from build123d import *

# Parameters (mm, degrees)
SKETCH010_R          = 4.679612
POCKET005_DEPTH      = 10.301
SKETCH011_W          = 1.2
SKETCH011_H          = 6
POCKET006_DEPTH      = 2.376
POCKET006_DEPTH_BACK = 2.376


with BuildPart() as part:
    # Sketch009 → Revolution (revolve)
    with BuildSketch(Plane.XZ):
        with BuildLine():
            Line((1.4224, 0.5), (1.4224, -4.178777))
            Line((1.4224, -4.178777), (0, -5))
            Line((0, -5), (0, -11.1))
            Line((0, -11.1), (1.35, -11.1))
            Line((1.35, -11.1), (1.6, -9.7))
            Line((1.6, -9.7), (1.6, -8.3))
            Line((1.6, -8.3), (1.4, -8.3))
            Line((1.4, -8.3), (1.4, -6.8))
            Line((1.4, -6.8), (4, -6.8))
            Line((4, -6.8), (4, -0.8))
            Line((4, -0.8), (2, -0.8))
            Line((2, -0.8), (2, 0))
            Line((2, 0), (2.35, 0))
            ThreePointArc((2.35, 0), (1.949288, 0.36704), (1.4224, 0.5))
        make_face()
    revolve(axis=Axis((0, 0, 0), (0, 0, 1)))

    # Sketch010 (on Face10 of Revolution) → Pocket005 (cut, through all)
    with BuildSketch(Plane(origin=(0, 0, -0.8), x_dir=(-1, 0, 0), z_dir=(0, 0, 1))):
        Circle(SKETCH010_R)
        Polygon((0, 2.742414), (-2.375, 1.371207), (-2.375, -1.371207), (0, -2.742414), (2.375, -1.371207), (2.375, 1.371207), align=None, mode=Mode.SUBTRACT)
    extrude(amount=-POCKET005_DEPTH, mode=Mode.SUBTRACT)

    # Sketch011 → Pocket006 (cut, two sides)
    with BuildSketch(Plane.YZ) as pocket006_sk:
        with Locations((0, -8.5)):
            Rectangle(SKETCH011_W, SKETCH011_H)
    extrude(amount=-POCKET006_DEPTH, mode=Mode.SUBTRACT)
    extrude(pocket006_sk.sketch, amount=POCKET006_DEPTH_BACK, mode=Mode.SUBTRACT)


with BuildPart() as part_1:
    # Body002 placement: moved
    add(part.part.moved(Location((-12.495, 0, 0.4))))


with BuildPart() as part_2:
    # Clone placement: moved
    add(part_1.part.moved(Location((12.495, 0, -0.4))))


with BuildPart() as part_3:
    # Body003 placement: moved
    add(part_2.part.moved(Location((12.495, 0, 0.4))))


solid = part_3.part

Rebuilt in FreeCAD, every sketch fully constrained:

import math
import FreeCAD as App
import Part
import Sketcher
from FreeCAD import Vector
Q = App.Units.Quantity


def add_polygon(sketch, points):
    """Adds a closed chain of lines whose ends are joined by coincident constraints."""
    first, n = sketch.GeometryCount, len(points)
    for a, b in zip(points, points[1:] + points[:1]):
        sketch.addGeometry(Part.LineSegment(App.Vector(*a, 0), App.Vector(*b, 0)), False)
    for i in range(n):
        sketch.addConstraint(Sketcher.Constraint("Coincident", first + i, 2, first + (i + 1) % n, 1))

doc = App.newDocument("Part")
body = doc.addObject("PartDesign::Body", "Body")

sketch1 = doc.addObject("Sketcher::SketchObject", "Sketch")
body.addObject(sketch1)
sketch1.AttachmentSupport = (doc.XZ_Plane, [""])
sketch1.MapMode = "FlatFace"
sketch1.addGeometry([
    Part.LineSegment(Vector(1.42, 0.5, 0), Vector(1.42, -4.18, 0)),
    Part.LineSegment(Vector(1.42, -4.18, 0), Vector(0, -5, 0)),
    Part.LineSegment(Vector(0, -5, 0), Vector(0, -11.1, 0)),
    Part.LineSegment(Vector(0, -11.1, 0), Vector(1.35, -11.1, 0)),
    Part.LineSegment(Vector(1.35, -11.1, 0), Vector(1.6, -9.7, 0)),
    Part.LineSegment(Vector(1.6, -9.7, 0), Vector(1.6, -8.3, 0)),
    Part.LineSegment(Vector(1.6, -8.3, 0), Vector(1.4, -8.3, 0)),
    Part.LineSegment(Vector(1.4, -8.3, 0), Vector(1.4, -6.8, 0)),
    Part.LineSegment(Vector(1.4, -6.8, 0), Vector(4, -6.8, 0)),
    Part.LineSegment(Vector(4, -6.8, 0), Vector(4, -0.8, 0)),
    Part.LineSegment(Vector(4, -0.8, 0), Vector(2, -0.8, 0)),
    Part.LineSegment(Vector(2, -0.8, 0), Vector(2, 0, 0)),
    Part.LineSegment(Vector(2, 0, 0), Vector(2.35, 0, 0)),
    Part.ArcOfCircle(Part.Circle(Vector(1.42, -0.61, 0), Vector(0, 0, 1), 1.11), math.radians(33), math.radians(90)),
], False)
sketch1.addConstraint([
    Sketcher.Constraint("Coincident", 0, 2, 1, 1),
    Sketcher.Constraint("Coincident", 1, 2, 2, 1),
    Sketcher.Constraint("Coincident", 2, 2, 3, 1),
    Sketcher.Constraint("Coincident", 3, 2, 4, 1),
    Sketcher.Constraint("Coincident", 4, 2, 5, 1),
    Sketcher.Constraint("Coincident", 5, 2, 6, 1),
    Sketcher.Constraint("Coincident", 6, 2, 7, 1),
    Sketcher.Constraint("Coincident", 7, 2, 8, 1),
    Sketcher.Constraint("Coincident", 8, 2, 9, 1),
    Sketcher.Constraint("Coincident", 9, 2, 10, 1),
    Sketcher.Constraint("Coincident", 10, 2, 11, 1),
    Sketcher.Constraint("Coincident", 11, 2, 12, 1),
    Sketcher.Constraint("Coincident", 12, 2, 13, 1),
    Sketcher.Constraint("Coincident", 13, 2, 0, 1),
    Sketcher.Constraint("Vertical", 0),
    Sketcher.Constraint("Vertical", 2),
    Sketcher.Constraint("Horizontal", 3),
    Sketcher.Constraint("Vertical", 5),
    Sketcher.Constraint("Horizontal", 6),
    Sketcher.Constraint("Vertical", 7),
    Sketcher.Constraint("Horizontal", 8),
    Sketcher.Constraint("Vertical", 9),
    Sketcher.Constraint("Horizontal", 10),
    Sketcher.Constraint("Vertical", 11),
    Sketcher.Constraint("Horizontal", 12),
    Sketcher.Constraint("PointOnObject", 1, 2, -2),
    Sketcher.Constraint("PointOnObject", 11, 2, -1),
    Sketcher.Constraint("Vertical", 13, 3, 0, 2),
    Sketcher.Constraint("DistanceX", 10, 2, 10, 1, Q("2 mm")),
    Sketcher.Constraint("DistanceY", 9, 1, 9, 2, Q("6 mm")),
    Sketcher.Constraint("Angle", 1, Q("-150.000001 deg")),
    Sketcher.Constraint("DistanceX", 6, 2, 6, 1, Q("0.2 mm")),
    Sketcher.Constraint("DistanceX", 8, 1, 8, 2, Q("2.6 mm")),
    Sketcher.Constraint("DistanceY", 2, 2, 2, 1, Q("6.1 mm")),
    Sketcher.Constraint("DistanceY", 5, 1, 5, 2, Q("1.4 mm")),
    Sketcher.Constraint("DistanceY", 7, 1, 7, 2, Q("1.5 mm")),
    Sketcher.Constraint("DistanceY", 11, 1, 11, 2, Q("0.8 mm")),
    Sketcher.Constraint("DistanceY", 1, 2, -1, 1, Q("5 mm")),
    Sketcher.Constraint("DistanceX", -1, 1, 8, 2, Q("4 mm")),
    Sketcher.Constraint("DistanceX", 3, 1, 3, 2, Q("1.35 mm")),
    Sketcher.Constraint("DistanceX", 12, 1, 12, 2, Q("0.35 mm")),
    Sketcher.Constraint("DistanceY", -1, 1, 13, 2, Q("0.5 mm")),
    Sketcher.Constraint("Radius", 13, Q("1.11044 mm")),
])
revolution = doc.addObject("PartDesign::Revolution", "Revolution")
body.addObject(revolution)
revolution.Profile = sketch1
revolution.ReferenceAxis = (sketch1, ["V_Axis"])
revolution.Angle = 360

sketch2 = doc.addObject("Sketcher::SketchObject", "Sketch001")
body.addObject(sketch2)
sketch2.AttachmentSupport = (doc.XY_Plane, [""])
sketch2.MapMode = "FlatFace"
sketch2.AttachmentOffset = App.Placement(Vector(0, 0, -0.8), App.Rotation())
sketch2.addGeometry(Part.Circle(Vector(0, 0, 0), Vector(0, 0, 1), 4.7), False)
add_polygon(sketch2, [(2.4, -1.4), (0, -2.7), (-2.4, -1.4), (-2.4, 1.4), (0, 2.7), (2.4, 1.4)])
sketch2.addConstraint([
    Sketcher.Constraint("Vertical", 3),
    Sketcher.Constraint("Vertical", 6),
    Sketcher.Constraint("Coincident", 0, 3, -1, 1),
    Sketcher.Constraint("Symmetric", 1, 2, 4, 2, -1, 1),
    Sketcher.Constraint("Symmetric", 2, 2, 5, 2, -1, 1),
    Sketcher.Constraint("PointOnObject", 1, 2, -2),
    Sketcher.Constraint("Parallel", 1, 4),
    Sketcher.Constraint("Horizontal", 3, 2, 5, 2),
    Sketcher.Constraint("Angle", 1, Q("-149.999998 deg")),
    Sketcher.Constraint("DistanceX", 3, 2, 5, 2, Q("4.75 mm")),
    Sketcher.Constraint("Diameter", 0, Q("9.359224 mm")),
    Sketcher.Constraint("DistanceY", 3, 1, 3, 2, Q("2.742414 mm")),
])
pocket1 = doc.addObject("PartDesign::Pocket", "Pocket")
body.addObject(pocket1)
pocket1.Profile = sketch2
pocket1.Type = "ThroughAll"

sketch3 = doc.addObject("Sketcher::SketchObject", "Sketch002")
body.addObject(sketch3)
sketch3.AttachmentSupport = (doc.YZ_Plane, [""])
sketch3.MapMode = "FlatFace"
add_polygon(sketch3, [(-0.6, -5.5), (-0.6, -11.5), (0.6, -11.5), (0.6, -5.5)])
sketch3.addConstraint([
    Sketcher.Constraint("Vertical", 0),
    Sketcher.Constraint("Horizontal", 1),
    Sketcher.Constraint("Vertical", 2),
    Sketcher.Constraint("Horizontal", 3),
    Sketcher.Constraint("DistanceY", 0, 2, 0, 1, Q("6 mm")),
    Sketcher.Constraint("DistanceX", 1, 1, 1, 2, Q("1.2 mm")),
    Sketcher.Constraint("DistanceX", 0, 2, -1, 1, Q("0.6 mm")),
    Sketcher.Constraint("DistanceY", 0, 2, -1, 1, Q("11.5 mm")),
])
pocket2 = doc.addObject("PartDesign::Pocket", "Pocket001")
body.addObject(pocket2)
pocket2.Profile = sketch3
pocket2.Type = "ThroughAll"
pocket2.Midplane = True
body2 = doc.addObject("PartDesign::Body", "Body001")
doc.recompute()

body.Placement = App.Placement(Vector(-12.495, 0, 0.4), App.Rotation(Vector(0, 0, 1), 0))
boolean = doc.addObject("PartDesign::Boolean", "Boolean")
body2.addObject(boolean)
boolean.Type = "Fuse"
boolean.addObjects([body])
body3 = doc.addObject("PartDesign::Body", "Body002")
doc.recompute()

body2.Placement = App.Placement(Vector(12.495, 0, -0.4), App.Rotation(Vector(0, 0, 1), 0))
boolean2 = doc.addObject("PartDesign::Boolean", "Boolean001")
body3.addObject(boolean2)
boolean2.Type = "Fuse"
boolean2.addObjects([body2])
body4 = doc.addObject("PartDesign::Body", "Body003")
doc.recompute()

body3.Placement = App.Placement(Vector(12.495, 0, 0.4), App.Rotation(Vector(0, 0, 1), 0))
boolean3 = doc.addObject("PartDesign::Boolean", "Boolean002")
body4.addObject(boolean3)
boolean3.Type = "Fuse"
boolean3.addObjects([body3])

doc.recompute()
